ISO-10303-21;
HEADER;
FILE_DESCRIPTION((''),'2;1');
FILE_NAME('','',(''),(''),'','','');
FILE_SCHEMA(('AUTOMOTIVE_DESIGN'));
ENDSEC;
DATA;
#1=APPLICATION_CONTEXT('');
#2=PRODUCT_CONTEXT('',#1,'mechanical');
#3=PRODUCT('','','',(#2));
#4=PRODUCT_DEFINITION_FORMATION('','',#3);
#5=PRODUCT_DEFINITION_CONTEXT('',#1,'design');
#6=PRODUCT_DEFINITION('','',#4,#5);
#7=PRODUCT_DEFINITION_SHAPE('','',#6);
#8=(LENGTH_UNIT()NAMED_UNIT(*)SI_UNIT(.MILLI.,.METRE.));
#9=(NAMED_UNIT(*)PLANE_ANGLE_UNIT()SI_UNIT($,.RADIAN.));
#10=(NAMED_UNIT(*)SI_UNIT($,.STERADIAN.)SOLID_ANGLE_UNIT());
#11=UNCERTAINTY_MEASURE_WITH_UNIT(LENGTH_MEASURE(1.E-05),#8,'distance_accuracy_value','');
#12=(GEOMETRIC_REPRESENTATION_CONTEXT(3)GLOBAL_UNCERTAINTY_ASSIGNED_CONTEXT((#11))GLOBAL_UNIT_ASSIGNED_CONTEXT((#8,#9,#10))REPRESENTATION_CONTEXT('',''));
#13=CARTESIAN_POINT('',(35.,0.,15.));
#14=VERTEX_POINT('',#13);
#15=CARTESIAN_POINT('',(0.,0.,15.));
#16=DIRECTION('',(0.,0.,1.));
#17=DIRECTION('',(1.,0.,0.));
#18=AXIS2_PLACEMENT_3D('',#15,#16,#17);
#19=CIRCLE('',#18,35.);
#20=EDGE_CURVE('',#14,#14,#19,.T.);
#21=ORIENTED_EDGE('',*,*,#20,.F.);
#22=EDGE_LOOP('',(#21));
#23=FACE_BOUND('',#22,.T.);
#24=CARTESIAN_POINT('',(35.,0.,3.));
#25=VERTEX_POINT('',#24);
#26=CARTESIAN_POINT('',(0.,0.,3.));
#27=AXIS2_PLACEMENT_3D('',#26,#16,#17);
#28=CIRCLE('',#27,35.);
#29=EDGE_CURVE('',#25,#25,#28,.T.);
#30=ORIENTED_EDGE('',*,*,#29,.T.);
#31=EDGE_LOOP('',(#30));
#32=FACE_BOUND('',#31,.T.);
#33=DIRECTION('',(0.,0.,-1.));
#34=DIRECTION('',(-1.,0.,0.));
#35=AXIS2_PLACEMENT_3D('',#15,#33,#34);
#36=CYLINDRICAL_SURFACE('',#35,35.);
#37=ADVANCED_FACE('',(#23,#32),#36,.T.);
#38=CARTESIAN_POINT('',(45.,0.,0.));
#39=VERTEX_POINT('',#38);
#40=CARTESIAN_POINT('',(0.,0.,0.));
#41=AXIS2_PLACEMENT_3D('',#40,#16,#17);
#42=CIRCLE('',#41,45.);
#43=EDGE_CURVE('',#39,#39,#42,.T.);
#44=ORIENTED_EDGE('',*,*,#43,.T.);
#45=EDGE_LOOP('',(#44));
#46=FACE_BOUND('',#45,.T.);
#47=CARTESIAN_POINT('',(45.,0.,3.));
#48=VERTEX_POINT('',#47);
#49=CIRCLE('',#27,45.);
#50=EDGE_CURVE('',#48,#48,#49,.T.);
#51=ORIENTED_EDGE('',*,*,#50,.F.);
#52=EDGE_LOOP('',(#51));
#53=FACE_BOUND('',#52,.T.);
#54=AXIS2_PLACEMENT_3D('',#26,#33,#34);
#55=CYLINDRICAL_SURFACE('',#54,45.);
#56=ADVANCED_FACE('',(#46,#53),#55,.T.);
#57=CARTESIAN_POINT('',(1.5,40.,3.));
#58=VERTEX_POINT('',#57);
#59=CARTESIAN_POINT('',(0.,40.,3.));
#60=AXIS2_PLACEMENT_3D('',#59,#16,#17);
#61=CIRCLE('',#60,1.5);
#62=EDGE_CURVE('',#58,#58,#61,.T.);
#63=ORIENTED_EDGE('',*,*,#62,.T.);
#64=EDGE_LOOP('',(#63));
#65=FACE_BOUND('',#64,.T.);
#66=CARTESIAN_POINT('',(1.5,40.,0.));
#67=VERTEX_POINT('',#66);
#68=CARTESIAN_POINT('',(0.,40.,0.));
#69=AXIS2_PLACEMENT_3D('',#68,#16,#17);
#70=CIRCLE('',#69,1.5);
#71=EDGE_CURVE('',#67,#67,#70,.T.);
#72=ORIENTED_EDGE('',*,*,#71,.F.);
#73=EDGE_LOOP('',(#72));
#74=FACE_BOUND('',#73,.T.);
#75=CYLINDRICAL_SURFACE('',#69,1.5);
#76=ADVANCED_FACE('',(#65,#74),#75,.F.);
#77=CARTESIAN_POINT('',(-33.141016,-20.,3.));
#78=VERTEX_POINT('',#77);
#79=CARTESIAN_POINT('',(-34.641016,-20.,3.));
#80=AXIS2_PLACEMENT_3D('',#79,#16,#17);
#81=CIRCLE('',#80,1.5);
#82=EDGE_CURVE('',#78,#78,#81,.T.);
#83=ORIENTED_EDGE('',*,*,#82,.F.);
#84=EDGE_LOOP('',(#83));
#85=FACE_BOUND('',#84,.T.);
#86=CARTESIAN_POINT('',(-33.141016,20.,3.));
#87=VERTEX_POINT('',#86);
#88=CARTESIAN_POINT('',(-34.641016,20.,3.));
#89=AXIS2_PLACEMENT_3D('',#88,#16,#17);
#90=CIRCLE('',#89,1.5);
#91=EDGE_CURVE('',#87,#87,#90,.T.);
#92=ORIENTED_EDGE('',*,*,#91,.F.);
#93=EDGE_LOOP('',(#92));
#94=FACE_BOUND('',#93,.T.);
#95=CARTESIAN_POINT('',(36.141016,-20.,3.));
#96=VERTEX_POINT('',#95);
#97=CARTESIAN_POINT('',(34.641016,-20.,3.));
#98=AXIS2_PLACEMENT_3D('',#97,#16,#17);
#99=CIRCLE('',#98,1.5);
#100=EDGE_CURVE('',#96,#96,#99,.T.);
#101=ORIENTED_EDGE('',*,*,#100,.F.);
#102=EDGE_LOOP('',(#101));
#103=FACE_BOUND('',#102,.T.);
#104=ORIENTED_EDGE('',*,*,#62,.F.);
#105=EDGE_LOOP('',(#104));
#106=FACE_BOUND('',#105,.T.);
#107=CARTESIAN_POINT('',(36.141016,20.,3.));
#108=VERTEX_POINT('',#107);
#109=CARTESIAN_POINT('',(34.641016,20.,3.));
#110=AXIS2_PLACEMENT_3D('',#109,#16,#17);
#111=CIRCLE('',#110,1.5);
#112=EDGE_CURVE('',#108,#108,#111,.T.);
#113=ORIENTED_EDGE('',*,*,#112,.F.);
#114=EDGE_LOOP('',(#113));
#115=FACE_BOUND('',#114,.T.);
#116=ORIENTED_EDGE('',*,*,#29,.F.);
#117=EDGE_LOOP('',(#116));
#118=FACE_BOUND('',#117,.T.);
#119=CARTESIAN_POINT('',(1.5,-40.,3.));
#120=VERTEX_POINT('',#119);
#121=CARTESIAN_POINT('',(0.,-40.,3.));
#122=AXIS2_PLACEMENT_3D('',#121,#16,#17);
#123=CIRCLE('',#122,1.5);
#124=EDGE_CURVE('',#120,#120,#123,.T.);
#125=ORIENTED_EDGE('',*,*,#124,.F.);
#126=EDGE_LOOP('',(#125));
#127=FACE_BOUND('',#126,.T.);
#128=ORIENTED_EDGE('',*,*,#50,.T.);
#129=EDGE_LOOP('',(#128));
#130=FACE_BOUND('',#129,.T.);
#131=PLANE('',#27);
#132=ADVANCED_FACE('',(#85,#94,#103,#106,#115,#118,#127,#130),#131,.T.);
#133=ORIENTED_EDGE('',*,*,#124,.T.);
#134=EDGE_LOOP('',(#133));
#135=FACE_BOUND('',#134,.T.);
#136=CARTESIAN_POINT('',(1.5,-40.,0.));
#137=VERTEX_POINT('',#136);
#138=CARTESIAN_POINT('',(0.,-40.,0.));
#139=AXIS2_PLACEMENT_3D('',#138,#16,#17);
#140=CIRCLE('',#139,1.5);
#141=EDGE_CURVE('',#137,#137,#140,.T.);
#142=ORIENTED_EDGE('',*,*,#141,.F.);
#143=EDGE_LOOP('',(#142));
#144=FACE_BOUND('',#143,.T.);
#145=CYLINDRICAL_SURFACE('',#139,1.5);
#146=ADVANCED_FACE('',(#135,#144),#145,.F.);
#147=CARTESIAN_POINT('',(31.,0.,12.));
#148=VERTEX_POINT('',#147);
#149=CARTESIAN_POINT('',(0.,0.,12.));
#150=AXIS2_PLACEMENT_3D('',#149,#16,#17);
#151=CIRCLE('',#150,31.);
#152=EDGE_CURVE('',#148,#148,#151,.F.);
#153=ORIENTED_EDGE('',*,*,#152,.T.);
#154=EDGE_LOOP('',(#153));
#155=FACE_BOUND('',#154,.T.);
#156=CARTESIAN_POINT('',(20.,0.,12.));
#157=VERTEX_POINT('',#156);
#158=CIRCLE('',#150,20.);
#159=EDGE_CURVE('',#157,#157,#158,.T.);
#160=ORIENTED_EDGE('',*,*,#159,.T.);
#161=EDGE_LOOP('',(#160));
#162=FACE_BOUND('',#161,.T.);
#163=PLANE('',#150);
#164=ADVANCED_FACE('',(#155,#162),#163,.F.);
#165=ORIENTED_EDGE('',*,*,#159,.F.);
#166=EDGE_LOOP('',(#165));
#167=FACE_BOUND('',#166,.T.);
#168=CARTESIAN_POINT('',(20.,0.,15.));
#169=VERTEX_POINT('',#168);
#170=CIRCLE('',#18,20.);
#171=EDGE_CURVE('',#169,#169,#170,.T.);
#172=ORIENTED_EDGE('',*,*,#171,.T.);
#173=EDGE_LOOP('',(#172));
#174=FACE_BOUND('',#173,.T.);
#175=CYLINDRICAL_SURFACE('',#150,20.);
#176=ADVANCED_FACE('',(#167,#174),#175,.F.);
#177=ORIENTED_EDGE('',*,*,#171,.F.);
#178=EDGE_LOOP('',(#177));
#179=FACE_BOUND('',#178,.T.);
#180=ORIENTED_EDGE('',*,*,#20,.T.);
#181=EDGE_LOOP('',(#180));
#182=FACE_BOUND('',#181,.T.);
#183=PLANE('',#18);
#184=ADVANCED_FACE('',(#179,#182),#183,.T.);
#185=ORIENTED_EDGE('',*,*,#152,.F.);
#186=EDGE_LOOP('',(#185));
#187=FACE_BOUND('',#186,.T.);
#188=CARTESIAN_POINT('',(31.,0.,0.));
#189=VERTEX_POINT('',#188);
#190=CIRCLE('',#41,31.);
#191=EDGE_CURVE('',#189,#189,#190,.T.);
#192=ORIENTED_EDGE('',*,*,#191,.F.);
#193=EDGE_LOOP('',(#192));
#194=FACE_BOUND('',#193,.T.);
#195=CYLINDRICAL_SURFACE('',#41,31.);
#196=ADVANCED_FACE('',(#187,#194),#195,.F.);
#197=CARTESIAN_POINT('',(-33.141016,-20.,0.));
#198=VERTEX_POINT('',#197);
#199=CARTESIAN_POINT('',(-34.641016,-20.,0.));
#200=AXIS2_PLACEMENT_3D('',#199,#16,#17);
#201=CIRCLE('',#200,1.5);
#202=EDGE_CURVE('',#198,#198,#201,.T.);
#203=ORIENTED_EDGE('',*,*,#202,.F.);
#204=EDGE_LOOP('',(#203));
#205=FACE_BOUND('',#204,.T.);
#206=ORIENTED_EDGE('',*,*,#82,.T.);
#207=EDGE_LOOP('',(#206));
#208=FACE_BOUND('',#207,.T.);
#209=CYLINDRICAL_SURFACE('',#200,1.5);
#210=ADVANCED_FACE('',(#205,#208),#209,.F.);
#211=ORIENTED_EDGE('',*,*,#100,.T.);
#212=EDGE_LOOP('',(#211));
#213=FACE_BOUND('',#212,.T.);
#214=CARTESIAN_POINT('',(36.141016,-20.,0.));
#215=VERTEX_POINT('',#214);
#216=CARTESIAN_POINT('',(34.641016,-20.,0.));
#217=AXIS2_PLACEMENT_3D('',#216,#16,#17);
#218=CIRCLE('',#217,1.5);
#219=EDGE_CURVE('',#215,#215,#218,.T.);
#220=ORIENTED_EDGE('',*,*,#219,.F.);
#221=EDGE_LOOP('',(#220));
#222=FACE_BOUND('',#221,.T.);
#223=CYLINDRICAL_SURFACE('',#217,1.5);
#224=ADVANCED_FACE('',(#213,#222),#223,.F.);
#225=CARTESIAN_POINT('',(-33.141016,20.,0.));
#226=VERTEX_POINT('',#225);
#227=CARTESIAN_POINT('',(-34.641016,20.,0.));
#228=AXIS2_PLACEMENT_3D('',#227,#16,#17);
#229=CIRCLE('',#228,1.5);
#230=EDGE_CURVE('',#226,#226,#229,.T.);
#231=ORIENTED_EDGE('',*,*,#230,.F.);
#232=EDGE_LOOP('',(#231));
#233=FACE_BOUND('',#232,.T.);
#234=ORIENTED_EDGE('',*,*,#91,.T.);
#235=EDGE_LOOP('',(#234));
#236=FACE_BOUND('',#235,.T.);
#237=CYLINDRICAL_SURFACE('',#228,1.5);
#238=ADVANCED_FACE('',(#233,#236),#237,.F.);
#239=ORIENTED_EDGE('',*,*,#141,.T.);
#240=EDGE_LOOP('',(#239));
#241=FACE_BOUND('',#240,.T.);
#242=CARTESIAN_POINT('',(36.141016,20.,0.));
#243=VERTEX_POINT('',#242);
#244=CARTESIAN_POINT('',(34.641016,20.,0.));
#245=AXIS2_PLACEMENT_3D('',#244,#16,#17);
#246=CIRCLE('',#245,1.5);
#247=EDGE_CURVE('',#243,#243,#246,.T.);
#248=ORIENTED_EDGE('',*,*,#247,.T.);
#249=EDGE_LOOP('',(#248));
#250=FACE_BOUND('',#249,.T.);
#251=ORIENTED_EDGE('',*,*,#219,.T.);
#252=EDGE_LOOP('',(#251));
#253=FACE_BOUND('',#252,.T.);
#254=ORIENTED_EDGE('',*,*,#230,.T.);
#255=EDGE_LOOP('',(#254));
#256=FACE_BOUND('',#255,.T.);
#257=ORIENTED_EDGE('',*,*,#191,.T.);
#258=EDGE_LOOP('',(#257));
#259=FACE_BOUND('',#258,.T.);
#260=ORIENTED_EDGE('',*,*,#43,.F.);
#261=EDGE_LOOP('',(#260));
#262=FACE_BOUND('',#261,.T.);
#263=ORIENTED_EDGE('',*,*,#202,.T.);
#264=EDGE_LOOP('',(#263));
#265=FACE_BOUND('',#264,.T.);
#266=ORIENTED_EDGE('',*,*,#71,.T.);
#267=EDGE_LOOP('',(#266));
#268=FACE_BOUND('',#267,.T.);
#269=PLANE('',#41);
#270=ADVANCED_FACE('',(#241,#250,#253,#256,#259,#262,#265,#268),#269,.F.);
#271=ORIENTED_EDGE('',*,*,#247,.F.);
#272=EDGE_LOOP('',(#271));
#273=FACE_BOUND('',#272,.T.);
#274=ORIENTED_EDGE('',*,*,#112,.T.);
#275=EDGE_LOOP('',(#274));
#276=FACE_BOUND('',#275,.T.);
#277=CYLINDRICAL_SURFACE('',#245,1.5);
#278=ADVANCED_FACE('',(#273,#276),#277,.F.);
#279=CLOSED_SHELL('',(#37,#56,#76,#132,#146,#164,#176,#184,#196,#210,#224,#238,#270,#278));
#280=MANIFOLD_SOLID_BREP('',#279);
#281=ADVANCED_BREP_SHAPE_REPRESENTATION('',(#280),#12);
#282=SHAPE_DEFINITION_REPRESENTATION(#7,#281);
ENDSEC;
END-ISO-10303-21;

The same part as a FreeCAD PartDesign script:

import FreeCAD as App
import Part
import Sketcher

doc = App.newDocument("Part")
body = doc.addObject("PartDesign::Body", "Body")

# Sketch on XY plane
sketch1 = doc.addObject("Sketcher::SketchObject", "Sketch")
body.addObject(sketch1)
sketch1.AttachmentSupport = (doc.XY_Plane, [""])
sketch1.MapMode = "FlatFace"
sketch1.addGeometry(Part.Circle(App.Vector(0, 0, 0), App.Vector(0, 0, 1), 45), False)
sketch1.addConstraint([
    Sketcher.Constraint("Coincident", 0, 3, -1, 1),
    Sketcher.Constraint("Diameter", 0, 90.0),
])
pad1 = doc.addObject("PartDesign::Pad", "Pad")
body.addObject(pad1)
pad1.Profile = sketch1
pad1.Length = 3

# Sketch on XY plane
sketch2 = doc.addObject("Sketcher::SketchObject", "Sketch001")
body.addObject(sketch2)
sketch2.AttachmentSupport = (doc.XY_Plane, [""])
sketch2.MapMode = "FlatFace"
sketch2.AttachmentOffset = App.Placement(App.Vector(0, 0, 3), App.Rotation())
sketch2.addGeometry(Part.Circle(App.Vector(0, 0, 0), App.Vector(0, 0, 1), 35), False)
sketch2.addConstraint([
    Sketcher.Constraint("Coincident", 0, 3, -1, 1),
    Sketcher.Constraint("Diameter", 0, 70.0),
])
pad2 = doc.addObject("PartDesign::Pad", "Pad001")
body.addObject(pad2)
pad2.Profile = sketch2
pad2.Length = 12

# Sketch on XY plane
sketch3 = doc.addObject("Sketcher::SketchObject", "Sketch002")
body.addObject(sketch3)
sketch3.AttachmentSupport = (doc.XY_Plane, [""])
sketch3.MapMode = "FlatFace"
sketch3.AttachmentOffset = App.Placement(App.Vector(0, 0, 15), App.Rotation())
sketch3.addGeometry(Part.Circle(App.Vector(0, 0, 0), App.Vector(0, 0, 1), 31), False)
sketch3.addConstraint([
    Sketcher.Constraint("Coincident", 0, 3, -1, 1),
    Sketcher.Constraint("Diameter", 0, 62.0),
])
pocket1 = doc.addObject("PartDesign::Pocket", "Pocket")
body.addObject(pocket1)
pocket1.Profile = sketch3
pocket1.Type = "ThroughAll"

# Sketch on XY plane
sketch4 = doc.addObject("Sketcher::SketchObject", "Sketch003")
body.addObject(sketch4)
sketch4.AttachmentSupport = (doc.XY_Plane, [""])
sketch4.MapMode = "FlatFace"
sketch4.AttachmentOffset = App.Placement(App.Vector(0, 0, 12), App.Rotation())
sketch4.addGeometry([
    Part.Circle(App.Vector(0, 0, 0), App.Vector(0, 0, 1), 35),
    Part.Circle(App.Vector(0, 0, 0), App.Vector(0, 0, 1), 20),
], False)
sketch4.addConstraint([
    Sketcher.Constraint("Coincident", 0, 3, -1, 1),
    Sketcher.Constraint("Coincident", 1, 3, -1, 1),
    Sketcher.Constraint("Diameter", 0, 70.0),
    Sketcher.Constraint("Diameter", 1, 40.0),
])
pad3 = doc.addObject("PartDesign::Pad", "Pad002")
body.addObject(pad3)
pad3.Profile = sketch4
pad3.Length = 3

# Sketch on XY plane
sketch5 = doc.addObject("Sketcher::SketchObject", "Sketch004")
body.addObject(sketch5)
sketch5.AttachmentSupport = (doc.XY_Plane, [""])
sketch5.MapMode = "FlatFace"
sketch5.AttachmentOffset = App.Placement(App.Vector(0, 0, 3), App.Rotation())
sketch5.addGeometry([
    Part.Circle(App.Vector(0, 40, 0), App.Vector(0, 0, 1), 1.5),  # 0
    Part.Circle(App.Vector(34.6, 20, 0), App.Vector(0, 0, 1), 1.5),  # 1
    Part.Circle(App.Vector(34.6, -20, 0), App.Vector(0, 0, 1), 1.5),  # 2
    Part.Circle(App.Vector(0, -40, 0), App.Vector(0, 0, 1), 1.5),  # 3
    Part.Circle(App.Vector(-34.6, -20, 0), App.Vector(0, 0, 1), 1.5),  # 4
    Part.Circle(App.Vector(-34.6, 20, 0), App.Vector(0, 0, 1), 1.5),  # 5
], False)
sketch5.addConstraint([
    Sketcher.Constraint("Equal", 0, 1),
    Sketcher.Constraint("Equal", 1, 2),
    Sketcher.Constraint("Equal", 2, 3),
    Sketcher.Constraint("Equal", 3, 4),
    Sketcher.Constraint("Equal", 4, 5),
    Sketcher.Constraint("Symmetric", 0, 3, 3, 3, -1, 1),
    Sketcher.Constraint("Symmetric", 1, 3, 4, 3, -1, 1),
    Sketcher.Constraint("Symmetric", 2, 3, 5, 3, -1, 1),
    Sketcher.Constraint("Symmetric", 2, 3, 4, 3, -2),
    Sketcher.Constraint("PointOnObject", 0, 3, -2),
    Sketcher.Constraint("Diameter", 0, 3.0),
    Sketcher.Constraint("DistanceY", -1, 1, 0, 3, 40.0),
    Sketcher.Constraint("DistanceY", -1, 1, 1, 3, 20.0),
    Sketcher.Constraint("DistanceX", -1, 1, 1, 3, 34.641016),
])
pocket2 = doc.addObject("PartDesign::Pocket", "Pocket001")
body.addObject(pocket2)
pocket2.Profile = sketch5
pocket2.Type = "ThroughAll"
pocket2.Midplane = True

doc.recompute()
